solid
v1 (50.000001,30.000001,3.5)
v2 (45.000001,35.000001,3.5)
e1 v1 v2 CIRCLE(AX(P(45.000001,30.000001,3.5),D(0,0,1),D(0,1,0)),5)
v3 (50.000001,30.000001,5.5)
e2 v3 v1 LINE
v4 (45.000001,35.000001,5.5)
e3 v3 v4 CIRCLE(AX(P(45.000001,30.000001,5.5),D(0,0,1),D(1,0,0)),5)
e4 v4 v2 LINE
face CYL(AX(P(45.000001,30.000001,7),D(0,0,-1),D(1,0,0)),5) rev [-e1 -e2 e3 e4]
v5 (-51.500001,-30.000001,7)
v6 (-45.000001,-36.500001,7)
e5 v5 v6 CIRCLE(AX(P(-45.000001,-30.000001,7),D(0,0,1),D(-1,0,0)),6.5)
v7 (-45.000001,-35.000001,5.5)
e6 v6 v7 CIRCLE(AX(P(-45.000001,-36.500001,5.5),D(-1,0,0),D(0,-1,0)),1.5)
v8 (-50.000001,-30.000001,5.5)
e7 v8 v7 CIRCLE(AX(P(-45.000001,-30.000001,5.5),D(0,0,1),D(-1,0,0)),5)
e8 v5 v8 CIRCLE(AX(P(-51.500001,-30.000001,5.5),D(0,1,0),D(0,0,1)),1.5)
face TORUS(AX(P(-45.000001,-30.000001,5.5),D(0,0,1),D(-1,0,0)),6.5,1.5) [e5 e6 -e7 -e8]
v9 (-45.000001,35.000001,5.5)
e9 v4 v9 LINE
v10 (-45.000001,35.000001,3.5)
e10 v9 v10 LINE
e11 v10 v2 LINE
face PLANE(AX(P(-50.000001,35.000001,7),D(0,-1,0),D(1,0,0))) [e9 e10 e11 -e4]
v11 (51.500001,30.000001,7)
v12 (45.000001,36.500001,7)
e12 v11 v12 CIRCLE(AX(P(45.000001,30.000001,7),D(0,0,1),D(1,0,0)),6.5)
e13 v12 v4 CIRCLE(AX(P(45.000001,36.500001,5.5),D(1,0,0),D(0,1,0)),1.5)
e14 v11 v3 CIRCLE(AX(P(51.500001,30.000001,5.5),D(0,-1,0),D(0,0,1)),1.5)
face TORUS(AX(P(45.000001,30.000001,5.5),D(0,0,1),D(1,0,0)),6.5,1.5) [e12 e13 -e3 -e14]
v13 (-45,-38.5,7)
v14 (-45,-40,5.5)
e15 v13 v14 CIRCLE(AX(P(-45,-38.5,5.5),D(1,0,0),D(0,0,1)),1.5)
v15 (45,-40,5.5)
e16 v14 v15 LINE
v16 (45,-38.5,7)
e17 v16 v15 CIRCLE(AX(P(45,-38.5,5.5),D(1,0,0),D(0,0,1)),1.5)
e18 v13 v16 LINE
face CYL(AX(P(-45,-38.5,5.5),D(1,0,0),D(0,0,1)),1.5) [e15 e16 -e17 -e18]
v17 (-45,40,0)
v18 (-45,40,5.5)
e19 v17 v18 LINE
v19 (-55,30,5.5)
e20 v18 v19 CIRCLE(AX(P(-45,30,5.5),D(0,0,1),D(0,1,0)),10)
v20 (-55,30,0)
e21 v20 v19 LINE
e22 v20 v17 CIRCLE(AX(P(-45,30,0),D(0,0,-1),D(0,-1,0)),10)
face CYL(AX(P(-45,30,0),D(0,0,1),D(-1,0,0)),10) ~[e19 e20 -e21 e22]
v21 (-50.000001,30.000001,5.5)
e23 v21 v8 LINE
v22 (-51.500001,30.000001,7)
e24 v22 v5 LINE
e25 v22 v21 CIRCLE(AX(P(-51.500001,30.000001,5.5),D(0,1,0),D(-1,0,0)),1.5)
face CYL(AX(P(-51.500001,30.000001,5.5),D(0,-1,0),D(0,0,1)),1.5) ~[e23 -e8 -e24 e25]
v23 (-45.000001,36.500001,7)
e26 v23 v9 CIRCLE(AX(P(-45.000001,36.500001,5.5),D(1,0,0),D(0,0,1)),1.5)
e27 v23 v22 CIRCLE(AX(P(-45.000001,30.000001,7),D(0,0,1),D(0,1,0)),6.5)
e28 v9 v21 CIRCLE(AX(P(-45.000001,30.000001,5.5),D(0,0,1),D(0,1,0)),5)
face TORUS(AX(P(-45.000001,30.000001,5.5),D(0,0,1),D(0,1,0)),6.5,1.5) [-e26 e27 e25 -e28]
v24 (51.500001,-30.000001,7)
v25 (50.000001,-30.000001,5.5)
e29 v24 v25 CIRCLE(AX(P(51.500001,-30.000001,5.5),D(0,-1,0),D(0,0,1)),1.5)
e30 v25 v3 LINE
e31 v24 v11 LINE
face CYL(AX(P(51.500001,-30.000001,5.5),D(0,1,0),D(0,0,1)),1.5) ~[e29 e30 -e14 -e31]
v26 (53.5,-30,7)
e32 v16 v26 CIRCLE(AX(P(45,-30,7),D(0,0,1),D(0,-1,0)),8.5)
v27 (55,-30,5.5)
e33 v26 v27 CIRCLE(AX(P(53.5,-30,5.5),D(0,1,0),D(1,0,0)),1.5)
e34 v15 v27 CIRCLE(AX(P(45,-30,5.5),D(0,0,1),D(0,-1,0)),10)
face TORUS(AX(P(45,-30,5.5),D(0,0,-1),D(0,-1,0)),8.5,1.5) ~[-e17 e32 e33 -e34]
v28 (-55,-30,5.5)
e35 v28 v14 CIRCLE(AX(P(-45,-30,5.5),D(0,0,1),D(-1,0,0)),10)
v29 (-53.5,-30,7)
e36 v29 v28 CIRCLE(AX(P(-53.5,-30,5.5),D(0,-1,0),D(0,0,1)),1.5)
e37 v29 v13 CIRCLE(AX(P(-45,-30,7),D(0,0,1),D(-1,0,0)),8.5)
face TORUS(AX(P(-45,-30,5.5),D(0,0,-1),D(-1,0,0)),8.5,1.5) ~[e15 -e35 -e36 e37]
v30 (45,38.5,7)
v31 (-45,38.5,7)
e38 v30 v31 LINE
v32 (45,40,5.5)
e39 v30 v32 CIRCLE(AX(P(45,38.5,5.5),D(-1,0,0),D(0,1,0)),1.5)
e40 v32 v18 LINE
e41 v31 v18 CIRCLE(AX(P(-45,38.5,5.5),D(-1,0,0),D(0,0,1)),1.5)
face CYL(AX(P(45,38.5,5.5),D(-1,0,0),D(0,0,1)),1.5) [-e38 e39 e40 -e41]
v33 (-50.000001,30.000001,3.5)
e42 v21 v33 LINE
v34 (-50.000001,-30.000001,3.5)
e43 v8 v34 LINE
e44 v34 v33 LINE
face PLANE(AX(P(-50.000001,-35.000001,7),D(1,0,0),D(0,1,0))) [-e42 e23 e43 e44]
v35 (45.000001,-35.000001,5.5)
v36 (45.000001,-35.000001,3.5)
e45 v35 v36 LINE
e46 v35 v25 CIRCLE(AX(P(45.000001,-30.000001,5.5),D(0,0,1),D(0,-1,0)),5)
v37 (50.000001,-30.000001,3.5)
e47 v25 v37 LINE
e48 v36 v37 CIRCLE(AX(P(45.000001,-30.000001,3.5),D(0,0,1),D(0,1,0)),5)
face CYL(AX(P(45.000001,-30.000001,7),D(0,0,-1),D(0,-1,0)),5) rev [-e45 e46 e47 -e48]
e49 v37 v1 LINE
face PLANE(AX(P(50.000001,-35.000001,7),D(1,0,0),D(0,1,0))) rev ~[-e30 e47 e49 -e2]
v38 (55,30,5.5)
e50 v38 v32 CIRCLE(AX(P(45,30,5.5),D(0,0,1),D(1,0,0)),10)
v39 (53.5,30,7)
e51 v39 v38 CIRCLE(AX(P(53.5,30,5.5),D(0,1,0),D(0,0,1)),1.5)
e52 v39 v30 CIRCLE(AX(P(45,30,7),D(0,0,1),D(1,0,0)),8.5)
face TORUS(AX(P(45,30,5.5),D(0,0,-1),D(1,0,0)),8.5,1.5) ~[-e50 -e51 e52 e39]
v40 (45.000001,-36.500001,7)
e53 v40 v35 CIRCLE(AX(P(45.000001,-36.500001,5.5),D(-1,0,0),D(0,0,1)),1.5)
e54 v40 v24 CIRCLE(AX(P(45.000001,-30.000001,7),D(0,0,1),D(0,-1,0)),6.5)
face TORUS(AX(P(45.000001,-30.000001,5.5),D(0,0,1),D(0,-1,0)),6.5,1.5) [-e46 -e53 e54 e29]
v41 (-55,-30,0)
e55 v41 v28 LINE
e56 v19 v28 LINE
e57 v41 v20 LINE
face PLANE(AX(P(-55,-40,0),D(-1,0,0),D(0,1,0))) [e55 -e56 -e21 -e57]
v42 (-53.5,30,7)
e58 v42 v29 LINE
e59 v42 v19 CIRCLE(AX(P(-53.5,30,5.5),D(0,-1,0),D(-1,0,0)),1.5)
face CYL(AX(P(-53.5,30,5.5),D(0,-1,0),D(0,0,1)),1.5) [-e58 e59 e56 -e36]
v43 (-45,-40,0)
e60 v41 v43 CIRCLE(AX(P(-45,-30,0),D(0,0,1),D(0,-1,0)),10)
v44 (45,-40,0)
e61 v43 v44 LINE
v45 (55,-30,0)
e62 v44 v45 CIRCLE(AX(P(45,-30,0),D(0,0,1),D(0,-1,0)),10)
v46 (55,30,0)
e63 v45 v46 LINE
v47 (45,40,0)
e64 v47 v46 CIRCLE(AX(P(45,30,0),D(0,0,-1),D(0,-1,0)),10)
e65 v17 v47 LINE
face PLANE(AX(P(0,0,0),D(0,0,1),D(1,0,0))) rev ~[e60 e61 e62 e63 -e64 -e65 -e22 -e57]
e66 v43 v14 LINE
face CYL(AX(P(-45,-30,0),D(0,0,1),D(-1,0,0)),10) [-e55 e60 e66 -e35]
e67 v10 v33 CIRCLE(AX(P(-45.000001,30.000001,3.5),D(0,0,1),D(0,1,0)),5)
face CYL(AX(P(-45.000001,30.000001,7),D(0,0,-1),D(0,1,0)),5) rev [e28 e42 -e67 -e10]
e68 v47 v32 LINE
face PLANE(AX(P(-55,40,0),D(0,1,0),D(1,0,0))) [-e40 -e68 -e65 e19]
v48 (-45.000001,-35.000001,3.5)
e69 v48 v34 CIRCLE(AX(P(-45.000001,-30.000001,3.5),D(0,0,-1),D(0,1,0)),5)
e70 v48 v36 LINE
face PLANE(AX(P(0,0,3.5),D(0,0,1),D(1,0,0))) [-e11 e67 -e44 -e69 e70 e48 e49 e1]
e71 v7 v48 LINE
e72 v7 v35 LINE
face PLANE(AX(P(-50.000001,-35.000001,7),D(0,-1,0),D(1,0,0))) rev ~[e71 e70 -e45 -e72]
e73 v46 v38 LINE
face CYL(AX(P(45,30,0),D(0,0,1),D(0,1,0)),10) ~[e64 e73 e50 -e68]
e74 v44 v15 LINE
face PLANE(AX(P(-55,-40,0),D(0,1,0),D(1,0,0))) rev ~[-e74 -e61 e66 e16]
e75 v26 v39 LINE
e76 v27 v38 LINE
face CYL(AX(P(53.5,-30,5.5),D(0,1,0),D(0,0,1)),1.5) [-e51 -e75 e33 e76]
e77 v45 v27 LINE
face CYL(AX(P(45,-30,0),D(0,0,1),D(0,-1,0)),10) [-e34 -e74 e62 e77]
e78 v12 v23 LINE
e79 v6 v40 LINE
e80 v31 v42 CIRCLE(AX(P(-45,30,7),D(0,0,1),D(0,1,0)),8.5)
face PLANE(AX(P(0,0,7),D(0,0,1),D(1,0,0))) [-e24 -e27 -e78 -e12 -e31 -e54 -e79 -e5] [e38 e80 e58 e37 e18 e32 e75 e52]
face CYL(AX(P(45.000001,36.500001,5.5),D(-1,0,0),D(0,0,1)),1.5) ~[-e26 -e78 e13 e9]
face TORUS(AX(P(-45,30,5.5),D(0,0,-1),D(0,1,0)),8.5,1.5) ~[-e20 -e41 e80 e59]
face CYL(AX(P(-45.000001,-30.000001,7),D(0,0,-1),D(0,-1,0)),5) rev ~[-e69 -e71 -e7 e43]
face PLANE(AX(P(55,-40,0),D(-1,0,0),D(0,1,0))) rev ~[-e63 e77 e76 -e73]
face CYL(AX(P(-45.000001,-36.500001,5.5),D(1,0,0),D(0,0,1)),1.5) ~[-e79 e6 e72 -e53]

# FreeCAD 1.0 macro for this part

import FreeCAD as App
import Part
import Sketcher


def edges_at(feature, points):
    """Names of the edges that pass closest to the given points."""
    edges = feature.Shape.Edges
    near = lambda p: min(range(len(edges)), key=lambda i: edges[i].distToShape(Part.Vertex(*p))[0])
    return sorted({f"Edge{near(p) + 1}" for p in points})


def add_polygon(sketch, points):
    """Adds a closed chain of lines whose ends are joined by coincident constraints."""
    first, n = sketch.GeometryCount, len(points)
    for a, b in zip(points, points[1:] + points[:1]):
        sketch.addGeometry(Part.LineSegment(App.Vector(*a, 0), App.Vector(*b, 0)), False)
    for i in range(n):
        sketch.addConstraint(Sketcher.Constraint("Coincident", first + i, 2, first + (i + 1) % n, 1))

doc = App.newDocument("Part")
params = doc.addObject("Spreadsheet::Sheet", "Params")
for row, (alias, value) in enumerate([
    ("sketch1_width", "110 mm"),
    ("sketch1_height", "80 mm"),
    ("pad1_length", "7 mm"),
    ("sketch2_width", "100.000002 mm"),
    ("sketch2_height", "70.000002 mm"),
    ("pocket1_length", "3.5 mm"),
    ("fillet_radius", "5 mm"),
    ("fillet2_radius", "10 mm"),
    ("fillet3_radius", "1.5 mm"),
], start=1):
    params.set(f"A{row}", alias)
    params.set(f"B{row}", "=" + value)
    params.setAlias(f"B{row}", alias)

body = doc.addObject("PartDesign::Body", "Body")

# Sketch on XY plane
sketch1 = body.newObject("Sketcher::SketchObject", "Sketch")
sketch1.AttachmentSupport = (doc.getObject("XY_Plane"), [""])
sketch1.MapMode = "FlatFace"
add_polygon(sketch1, [(-55, 40), (-55, -40), (55, -40), (55, 40)])  # lines 0-3
sketch1.addConstraint([
    Sketcher.Constraint("Vertical", 0),
    Sketcher.Constraint("Horizontal", 1),
    Sketcher.Constraint("Vertical", 2),
    Sketcher.Constraint("Horizontal", 3),
    Sketcher.Constraint("Symmetric", 0, 2, 2, 2, -1, 1),
    Sketcher.Constraint("DistanceX", 1, 1, 1, 2, 110.0),
    Sketcher.Constraint("DistanceY", 0, 2, 0, 1, 80.0),
])
sketch1.setExpression("Constraints[9]", "Params.sketch1_width")
sketch1.setExpression("Constraints[10]", "Params.sketch1_height")
pad1 = body.newObject("PartDesign::Pad", "Pad")
pad1.Profile = sketch1
pad1.setExpression("Length", "Params.pad1_length")

# Sketch on XY plane
sketch2 = body.newObject("Sketcher::SketchObject", "Sketch001")
sketch2.AttachmentSupport = (doc.getObject("XY_Plane"), [""])
sketch2.MapMode = "FlatFace"
sketch2.AttachmentOffset = App.Placement(App.Vector(0, 0, 7), App.Rotation())
add_polygon(sketch2, [(-50, 35), (-50, -35), (50, -35), (50, 35)])  # lines 0-3
sketch2.addConstraint([
    Sketcher.Constraint("Vertical", 0),
    Sketcher.Constraint("Horizontal", 1),
    Sketcher.Constraint("Vertical", 2),
    Sketcher.Constraint("Horizontal", 3),
    Sketcher.Constraint("Symmetric", 0, 2, 2, 2, -1, 1),
    Sketcher.Constraint("DistanceX", 1, 1, 1, 2, 100.000002),
    Sketcher.Constraint("DistanceY", 0, 2, 0, 1, 70.000002),
])
sketch2.setExpression("Constraints[9]", "Params.sketch2_width")
sketch2.setExpression("Constraints[10]", "Params.sketch2_height")
pocket1 = body.newObject("PartDesign::Pocket", "Pocket")
pocket1.Profile = sketch2
pocket1.setExpression("Length", "Params.pocket1_length")
doc.recompute()

fillet = body.newObject("PartDesign::Fillet", "Fillet")
fillet.Base = (pocket1, edges_at(pocket1, [
    (50, -35, 5.25),
    (-50, -35, 5.25),
    (-50, 35, 5.25),
    (50, 35, 5.25),
]))
fillet.setExpression("Radius", "Params.fillet_radius")
doc.recompute()

fillet2 = body.newObject("PartDesign::Fillet", "Fillet001")
fillet2.Base = (fillet, edges_at(fillet, [
    (-55, -40, 3.5),
    (55, -40, 3.5),
    (55, 40, 3.5),
    (-55, 40, 3.5),
]))
fillet2.setExpression("Radius", "Params.fillet2_radius")
doc.recompute()

fillet3 = body.newObject("PartDesign::Fillet", "Fillet002")
fillet3.Base = (fillet2, edges_at(fillet2, [(0, -40, 7), (50, 0, 7)]))
fillet3.setExpression("Radius", "Params.fillet3_radius")

doc.recompute()
